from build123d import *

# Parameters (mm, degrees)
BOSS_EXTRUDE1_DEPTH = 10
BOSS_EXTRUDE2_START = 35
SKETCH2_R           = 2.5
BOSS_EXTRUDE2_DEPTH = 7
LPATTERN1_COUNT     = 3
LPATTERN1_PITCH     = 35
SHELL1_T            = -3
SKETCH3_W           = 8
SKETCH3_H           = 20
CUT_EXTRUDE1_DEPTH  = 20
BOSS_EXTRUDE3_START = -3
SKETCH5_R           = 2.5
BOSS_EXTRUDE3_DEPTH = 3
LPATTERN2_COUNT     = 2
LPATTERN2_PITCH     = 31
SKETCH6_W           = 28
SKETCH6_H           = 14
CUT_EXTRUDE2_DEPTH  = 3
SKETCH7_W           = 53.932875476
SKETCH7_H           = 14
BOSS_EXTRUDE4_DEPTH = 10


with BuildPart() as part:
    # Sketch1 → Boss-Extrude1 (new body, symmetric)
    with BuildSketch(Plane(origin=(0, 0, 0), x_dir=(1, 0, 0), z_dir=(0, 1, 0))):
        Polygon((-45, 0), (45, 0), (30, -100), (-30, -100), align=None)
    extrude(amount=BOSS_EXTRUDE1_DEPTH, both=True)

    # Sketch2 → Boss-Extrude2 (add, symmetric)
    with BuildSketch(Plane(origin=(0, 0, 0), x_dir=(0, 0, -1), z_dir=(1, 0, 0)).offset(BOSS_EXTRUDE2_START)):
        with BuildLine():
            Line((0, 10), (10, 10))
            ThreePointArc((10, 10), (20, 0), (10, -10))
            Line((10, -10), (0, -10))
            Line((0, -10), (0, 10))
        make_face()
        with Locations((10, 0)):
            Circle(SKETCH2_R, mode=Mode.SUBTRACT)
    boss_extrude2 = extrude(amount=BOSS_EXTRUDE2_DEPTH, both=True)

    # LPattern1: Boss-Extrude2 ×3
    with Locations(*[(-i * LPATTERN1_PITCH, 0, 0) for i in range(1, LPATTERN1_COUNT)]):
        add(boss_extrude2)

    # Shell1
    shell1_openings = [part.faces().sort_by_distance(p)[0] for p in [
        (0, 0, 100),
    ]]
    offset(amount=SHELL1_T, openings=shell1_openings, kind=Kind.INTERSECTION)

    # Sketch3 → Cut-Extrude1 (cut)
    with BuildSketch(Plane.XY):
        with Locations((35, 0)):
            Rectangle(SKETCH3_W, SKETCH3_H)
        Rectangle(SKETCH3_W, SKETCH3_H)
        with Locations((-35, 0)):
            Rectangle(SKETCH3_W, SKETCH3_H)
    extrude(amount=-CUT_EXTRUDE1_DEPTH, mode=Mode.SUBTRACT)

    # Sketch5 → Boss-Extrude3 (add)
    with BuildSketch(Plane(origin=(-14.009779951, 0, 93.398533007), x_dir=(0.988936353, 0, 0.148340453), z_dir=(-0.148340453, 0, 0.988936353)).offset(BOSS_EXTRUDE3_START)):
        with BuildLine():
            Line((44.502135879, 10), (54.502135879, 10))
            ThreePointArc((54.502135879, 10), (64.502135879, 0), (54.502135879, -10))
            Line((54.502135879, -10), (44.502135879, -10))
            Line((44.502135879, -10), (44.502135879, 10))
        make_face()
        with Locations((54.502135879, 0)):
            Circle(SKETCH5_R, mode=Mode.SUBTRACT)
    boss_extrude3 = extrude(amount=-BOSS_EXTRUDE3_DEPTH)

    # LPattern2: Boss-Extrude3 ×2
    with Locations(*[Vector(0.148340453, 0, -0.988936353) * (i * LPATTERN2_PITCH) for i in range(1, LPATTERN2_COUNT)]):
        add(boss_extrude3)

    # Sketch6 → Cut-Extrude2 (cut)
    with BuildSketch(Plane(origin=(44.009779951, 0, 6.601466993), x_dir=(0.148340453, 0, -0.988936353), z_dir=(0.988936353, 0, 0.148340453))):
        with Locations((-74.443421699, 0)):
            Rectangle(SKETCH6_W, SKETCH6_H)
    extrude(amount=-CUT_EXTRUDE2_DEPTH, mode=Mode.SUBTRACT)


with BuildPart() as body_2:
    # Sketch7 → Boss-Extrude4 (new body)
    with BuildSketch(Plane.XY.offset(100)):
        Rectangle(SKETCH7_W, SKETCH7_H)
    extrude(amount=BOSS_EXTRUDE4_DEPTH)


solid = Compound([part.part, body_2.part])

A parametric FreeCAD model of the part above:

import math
import FreeCAD as App
import Part
import Sketcher


def faces_at(feature, points):
    """Names of the faces that lie closest to the given points."""
    faces = feature.Shape.Faces
    near = lambda p: min(range(len(faces)), key=lambda i: faces[i].distToShape(Part.Vertex(*p))[0])
    return sorted({f"Face{near(p) + 1}" for p in points})


def add_polygon(sketch, points):
    """Adds a closed chain of lines whose ends are joined by coincident constraints."""
    first, n = sketch.GeometryCount, len(points)
    for a, b in zip(points, points[1:] + points[:1]):
        sketch.addGeometry(Part.LineSegment(App.Vector(*a, 0), App.Vector(*b, 0)), False)
    for i in range(n):
        sketch.addConstraint(Sketcher.Constraint("Coincident", first + i, 2, first + (i + 1) % n, 1))

doc = App.newDocument("Part")
body = doc.addObject("PartDesign::Body", "Body")

sketch1 = body.newObject("Sketcher::SketchObject", "Sketch")
sketch1.AttachmentSupport = (doc.getObject("XZ_Plane"), [""])
sketch1.MapMode = "FlatFace"
add_polygon(sketch1, [(45, 0), (-45, 0), (-30, 100), (30, 100)])
sketch1.addConstraint([
    Sketcher.Constraint("Horizontal", 0),
    Sketcher.Constraint("Horizontal", 2),
    Sketcher.Constraint("Symmetric", 0, 2, 3, 2, -1, 1),
    Sketcher.Constraint("Equal", 1, 3),
    Sketcher.Constraint("DistanceX", 0, 2, 0, 1, 90.0),
    Sketcher.Constraint("DistanceX", 2, 1, 2, 2, 60.0),
    Sketcher.Constraint("DistanceY", -1, 1, 1, 2, 100.0),
])
pad1 = body.newObject("PartDesign::Pad", "Pad")
pad1.Profile = sketch1
pad1.Length = 20
pad1.Midplane = True

sketch2 = body.newObject("Sketcher::SketchObject", "Sketch001")
sketch2.AttachmentSupport = (doc.getObject("YZ_Plane"), [""])
sketch2.MapMode = "FlatFace"
sketch2.AttachmentOffset = App.Placement(App.Vector(0, 0, 35), App.Rotation())
sketch2.addGeometry([
    Part.LineSegment(App.Vector(10, -10, 0), App.Vector(10, 0, 0)),
    Part.LineSegment(App.Vector(10, 0, 0), App.Vector(-10, 0, 0)),
    Part.LineSegment(App.Vector(-10, 0, 0), App.Vector(-10, -10, 0)),
    Part.ArcOfCircle(Part.Circle(App.Vector(0, -10, 0), App.Vector(0, 0, 1), 10), math.radians(180), math.radians(360)),
    Part.Circle(App.Vector(0, -10, 0), App.Vector(0, 0, 1), 2.5),
], False)
sketch2.addConstraint([
    Sketcher.Constraint("Coincident", 0, 2, 1, 1),
    Sketcher.Constraint("Coincident", 1, 2, 2, 1),
    Sketcher.Constraint("Tangent", 2, 2, 3, 1),
    Sketcher.Constraint("Tangent", 3, 2, 0, 1),
    Sketcher.Constraint("Vertical", 0),
    Sketcher.Constraint("Horizontal", 1),
    Sketcher.Constraint("Vertical", 2),
    Sketcher.Constraint("Coincident", 4, 3, 3, 3),
    Sketcher.Constraint("Symmetric", 0, 2, 1, 2, -1, 1),
    Sketcher.Constraint("Diameter", 4, 5.0),
    Sketcher.Constraint("Radius", 3, 10.0),
    Sketcher.Constraint("DistanceY", 0, 1, 0, 2, 10.0),
])
pad2 = body.newObject("PartDesign::Pad", "Pad001")
pad2.Profile = sketch2
pad2.Length = 14
pad2.Midplane = True
doc.recompute()

linearpattern = body.newObject("PartDesign::LinearPattern", "LinearPattern")
linearpattern.Originals = [pad2]
linearpattern.Direction = (doc.getObject("X_Axis"), [""])
linearpattern.Mode = "offset"
linearpattern.Offset = 35
linearpattern.Occurrences = 3
linearpattern.Reversed = True
body.Tip = linearpattern
doc.recompute()

thickness = body.newObject("PartDesign::Thickness", "Thickness")
thickness.Base = (linearpattern, faces_at(linearpattern, [(0, 0, 100)]))
thickness.Value = 3
thickness.Reversed = True
thickness.Join = "Intersection"

sketch3 = body.newObject("Sketcher::SketchObject", "Sketch002")
sketch3.AttachmentSupport = (doc.getObject("XY_Plane"), [""])
sketch3.MapMode = "FlatFace"
add_polygon(sketch3, [(31, 10), (31, -10), (39, -10), (39, 10)])
add_polygon(sketch3, [(-4, 10), (-4, -10), (4, -10), (4, 10)])
add_polygon(sketch3, [(-39, 10), (-39, -10), (-31, -10), (-31, 10)])
sketch3.addConstraint([
    Sketcher.Constraint("Vertical", 0),
    Sketcher.Constraint("Horizontal", 1),
    Sketcher.Constraint("Vertical", 2),
    Sketcher.Constraint("Horizontal", 3),
    Sketcher.Constraint("Vertical", 4),
    Sketcher.Constraint("Horizontal", 5),
    Sketcher.Constraint("Vertical", 6),
    Sketcher.Constraint("Horizontal", 7),
    Sketcher.Constraint("Vertical", 8),
    Sketcher.Constraint("Horizontal", 9),
    Sketcher.Constraint("Vertical", 10),
    Sketcher.Constraint("Horizontal", 11),
    Sketcher.Constraint("Symmetric", 4, 2, 6, 2, -1, 1),
    Sketcher.Constraint("Symmetric", 2, 2, 8, 2, -1, 1),
    Sketcher.Constraint("Symmetric", 0, 2, 10, 2, -1, 1),
    Sketcher.Constraint("Horizontal", 1, 2, 4, 2),
    Sketcher.Constraint("Horizontal", 3, 2, 6, 2),
    Sketcher.Constraint("Equal", 3, 5),
    Sketcher.Constraint("DistanceX", 1, 1, 1, 2, 8.0),
    Sketcher.Constraint("DistanceY", 0, 2, 0, 1, 20.0),
    Sketcher.Constraint("DistanceX", -1, 1, 0, 2, 31.0),
])
pocket1 = body.newObject("PartDesign::Pocket", "Pocket")
pocket1.Profile = sketch3
pocket1.Length = 20

sketch4 = body.newObject("Sketcher::SketchObject", "Sketch003")
sketch4.Placement = App.Placement(App.Vector(-13.564759, 0, 90.431724), App.Rotation(App.Vector(0.988936353, 0, 0.148340453), App.Vector(0, 1, 0), App.Vector(-0.148340453, 0, 0.988936353), "ZXY"))
sketch4.addGeometry([
    Part.LineSegment(App.Vector(54.502136, 10, 0), App.Vector(44.502136, 10, 0)),
    Part.LineSegment(App.Vector(44.502136, 10, 0), App.Vector(44.502136, -10, 0)),
    Part.LineSegment(App.Vector(44.502136, -10, 0), App.Vector(54.502136, -10, 0)),
    Part.ArcOfCircle(Part.Circle(App.Vector(54.502136, 0, 0), App.Vector(0, 0, 1), 10), math.radians(-90), math.radians(90)),
    Part.Circle(App.Vector(54.502136, 0, 0), App.Vector(0, 0, 1), 2.5),
], False)
sketch4.addConstraint([
    Sketcher.Constraint("Coincident", 0, 2, 1, 1),
    Sketcher.Constraint("Coincident", 1, 2, 2, 1),
    Sketcher.Constraint("Tangent", 2, 2, 3, 1),
    Sketcher.Constraint("Tangent", 3, 2, 0, 1),
    Sketcher.Constraint("Horizontal", 0),
    Sketcher.Constraint("Vertical", 1),
    Sketcher.Constraint("Horizontal", 2),
    Sketcher.Constraint("Coincident", 4, 3, 3, 3),
    Sketcher.Constraint("PointOnObject", 3, 3, -1),
    Sketcher.Constraint("Diameter", 4, 5.0),
    Sketcher.Constraint("Radius", 3, 10.0),
    Sketcher.Constraint("DistanceX", 0, 2, 0, 1, 10.0),
    Sketcher.Constraint("DistanceX", -1, 1, 3, 3, 54.502136),
])
pad3 = body.newObject("PartDesign::Pad", "Pad002")
pad3.Profile = sketch4
pad3.Length = 3
pad3.Reversed = True
doc.recompute()

datumline = body.newObject("PartDesign::Line", "DatumLine")
datumline.Placement = App.Placement(App.Vector(0, 0, 0), App.Rotation(App.Vector(0, 0, 1), App.Vector(0.148340453, 0, -0.988936353)))
linearpattern2 = body.newObject("PartDesign::LinearPattern", "LinearPattern001")
linearpattern2.Originals = [pad3]
linearpattern2.Direction = (datumline, [""])
linearpattern2.Mode = "offset"
linearpattern2.Offset = 31
linearpattern2.Occurrences = 2
body.Tip = linearpattern2

sketch5 = body.newObject("Sketcher::SketchObject", "Sketch004")
sketch5.Placement = App.Placement(App.Vector(44.00978, 0, 6.601467), App.Rotation(App.Vector(0.148340453, 0, -0.988936353), App.Vector(0, 1, 0), App.Vector(0.988936353, 0, 0.148340453), "ZXY"))
add_polygon(sketch5, [(-88.443422, 7), (-88.443422, -7), (-60.443422, -7), (-60.443422, 7)])
sketch5.addConstraint([
    Sketcher.Constraint("Vertical", 0),
    Sketcher.Constraint("Horizontal", 1),
    Sketcher.Constraint("Vertical", 2),
    Sketcher.Constraint("Horizontal", 3),
    Sketcher.Constraint("DistanceX", 1, 1, 1, 2, 28.0),
    Sketcher.Constraint("DistanceY", 0, 2, 0, 1, 14.0),
    Sketcher.Constraint("DistanceY", 0, 2, -1, 1, 7.0),
    Sketcher.Constraint("DistanceX", 0, 2, -1, 1, 88.443422),
])
pocket2 = body.newObject("PartDesign::Pocket", "Pocket001")
pocket2.Profile = sketch5
pocket2.Length = 3
body2 = doc.addObject("PartDesign::Body", "Body001")

sketch6 = body2.newObject("Sketcher::SketchObject", "Sketch005")
sketch6.AttachmentSupport = (doc.getObject("XY_Plane001"), [""])
sketch6.MapMode = "FlatFace"
sketch6.AttachmentOffset = App.Placement(App.Vector(0, 0, 100), App.Rotation())
add_polygon(sketch6, [(-26.966438, 7), (-26.966438, -7), (26.966438, -7), (26.966438, 7)])
sketch6.addConstraint([
    Sketcher.Constraint("Vertical", 0),
    Sketcher.Constraint("Horizontal", 1),
    Sketcher.Constraint("Vertical", 2),
    Sketcher.Constraint("Horizontal", 3),
    Sketcher.Constraint("Symmetric", 0, 2, 2, 2, -1, 1),
    Sketcher.Constraint("DistanceY", 0, 2, 0, 1, 14.0),
    Sketcher.Constraint("DistanceX", 1, 1, 1, 2, 53.932875),
])
pad4 = body2.newObject("PartDesign::Pad", "Pad003")
pad4.Profile = sketch6
pad4.Length = 10

doc.recompute()
